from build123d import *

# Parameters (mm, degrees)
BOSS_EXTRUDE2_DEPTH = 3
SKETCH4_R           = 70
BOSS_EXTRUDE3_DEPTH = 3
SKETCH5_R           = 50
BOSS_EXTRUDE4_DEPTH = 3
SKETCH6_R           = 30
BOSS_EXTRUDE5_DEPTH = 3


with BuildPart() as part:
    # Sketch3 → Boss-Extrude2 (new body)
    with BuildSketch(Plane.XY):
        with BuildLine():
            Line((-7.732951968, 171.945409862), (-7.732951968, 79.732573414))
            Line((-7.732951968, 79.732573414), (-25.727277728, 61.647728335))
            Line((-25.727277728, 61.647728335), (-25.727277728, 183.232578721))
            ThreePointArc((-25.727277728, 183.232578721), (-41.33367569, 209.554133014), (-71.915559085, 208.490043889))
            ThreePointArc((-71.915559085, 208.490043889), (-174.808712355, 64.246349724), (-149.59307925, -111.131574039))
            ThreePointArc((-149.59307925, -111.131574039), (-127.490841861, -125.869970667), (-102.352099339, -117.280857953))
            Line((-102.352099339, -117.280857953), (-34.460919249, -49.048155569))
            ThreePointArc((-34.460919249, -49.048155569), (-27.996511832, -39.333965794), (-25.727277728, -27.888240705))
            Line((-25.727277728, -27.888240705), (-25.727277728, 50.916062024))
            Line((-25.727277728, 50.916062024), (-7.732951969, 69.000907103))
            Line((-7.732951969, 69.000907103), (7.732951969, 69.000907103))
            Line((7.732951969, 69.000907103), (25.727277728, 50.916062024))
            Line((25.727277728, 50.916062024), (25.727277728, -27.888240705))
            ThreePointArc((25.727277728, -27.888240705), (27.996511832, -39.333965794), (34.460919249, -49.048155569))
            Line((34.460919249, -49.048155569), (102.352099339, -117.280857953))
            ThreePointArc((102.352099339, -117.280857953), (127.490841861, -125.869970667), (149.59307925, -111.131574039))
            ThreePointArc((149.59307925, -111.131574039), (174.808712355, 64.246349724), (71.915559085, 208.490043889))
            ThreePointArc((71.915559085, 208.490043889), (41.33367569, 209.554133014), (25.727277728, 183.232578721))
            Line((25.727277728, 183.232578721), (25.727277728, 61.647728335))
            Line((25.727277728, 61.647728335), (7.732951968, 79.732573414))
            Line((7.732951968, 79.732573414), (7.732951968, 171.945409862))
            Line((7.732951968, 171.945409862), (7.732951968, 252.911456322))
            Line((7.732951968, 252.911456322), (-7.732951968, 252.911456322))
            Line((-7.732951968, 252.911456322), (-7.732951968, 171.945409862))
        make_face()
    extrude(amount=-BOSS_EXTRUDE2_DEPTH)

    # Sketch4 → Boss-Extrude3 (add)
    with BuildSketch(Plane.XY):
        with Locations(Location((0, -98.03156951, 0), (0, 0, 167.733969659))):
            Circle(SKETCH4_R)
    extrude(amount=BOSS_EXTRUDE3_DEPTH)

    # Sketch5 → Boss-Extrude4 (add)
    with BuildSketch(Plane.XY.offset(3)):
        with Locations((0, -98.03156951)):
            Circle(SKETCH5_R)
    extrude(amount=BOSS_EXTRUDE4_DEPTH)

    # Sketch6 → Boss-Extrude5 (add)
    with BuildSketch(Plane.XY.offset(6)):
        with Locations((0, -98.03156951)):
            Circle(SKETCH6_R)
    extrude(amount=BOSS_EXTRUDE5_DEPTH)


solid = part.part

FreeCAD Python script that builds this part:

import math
import FreeCAD as App
import Part
import Sketcher
from FreeCAD import Vector

doc = App.newDocument("Part")
params = doc.addObject("Spreadsheet::Sheet", "Params")
for row, (alias, value) in enumerate([
    ("sketch1_radius", "30 mm"),
    ("pad1_length", "3 mm"),
    ("sketch2_diameter", "140 mm"),
    ("pad2_length", "3 mm"),
    ("sketch3_diameter", "100 mm"),
    ("pad3_length", "3 mm"),
    ("sketch4_diameter", "60 mm"),
    ("pad4_length", "3 mm"),
], start=1):
    params.set(f"A{row}", alias)
    params.set(f"B{row}", "=" + value)
    params.setAlias(f"B{row}", alias)

body = doc.addObject("PartDesign::Body", "Body")

# Sketch on XY plane
sketch1 = body.newObject("Sketcher::SketchObject", "Sketch")
sketch1.AttachmentSupport = (doc.getObject("XY_Plane"), [""])
sketch1.MapMode = "FlatFace"
sketch1.addGeometry(Part.LineSegment(Vector(-8, 80, 0), Vector(-26, 62, 0)), False)
sketch1.addGeometry(Part.LineSegment(Vector(-26, 62, 0), Vector(-26, 183, 0)), False)
sketch1.addGeometry(Part.ArcOfCircle(Part.Circle(Vector(-56, 183, 0), Vector(0, 0, 1), 30), math.radians(0), math.radians(123)), False)
sketch1.addGeometry(Part.ArcOfCircle(Part.Circle(Vector(57, 8, 0), Vector(0, 0, 1), 238), math.radians(123), math.radians(210)), False)
sketch1.addGeometry(Part.ArcOfCircle(Part.Circle(Vector(-124, -96, 0), Vector(0, 0, 1), 30), math.radians(-150), math.radians(-45)), False)
sketch1.addGeometry(Part.LineSegment(Vector(-102, -117, 0), Vector(-34, -49, 0)), False)
sketch1.addGeometry(Part.ArcOfCircle(Part.Circle(Vector(-56, -28, 0), Vector(0, 0, 1), 30), math.radians(-45), math.radians(0)), False)
sketch1.addGeometry(Part.LineSegment(Vector(-26, -28, 0), Vector(-26, 51, 0)), False)
sketch1.addGeometry(Part.LineSegment(Vector(-26, 51, 0), Vector(-8, 69, 0)), False)
sketch1.addGeometry(Part.LineSegment(Vector(-8, 69, 0), Vector(8, 69, 0)), False)
sketch1.addGeometry(Part.LineSegment(Vector(8, 69, 0), Vector(26, 51, 0)), False)
sketch1.addGeometry(Part.LineSegment(Vector(26, 51, 0), Vector(26, -28, 0)), False)
sketch1.addGeometry(Part.ArcOfCircle(Part.Circle(Vector(56, -28, 0), Vector(0, 0, 1), 30), math.radians(-180), math.radians(-135)), False)
sketch1.addGeometry(Part.LineSegment(Vector(34, -49, 0), Vector(102, -117, 0)), False)
sketch1.addGeometry(Part.ArcOfCircle(Part.Circle(Vector(124, -96, 0), Vector(0, 0, 1), 30), math.radians(-135), math.radians(-30)), False)
sketch1.addGeometry(Part.ArcOfCircle(Part.Circle(Vector(-57, 8, 0), Vector(0, 0, 1), 238), math.radians(-30), math.radians(57)), False)
sketch1.addGeometry(Part.ArcOfCircle(Part.Circle(Vector(56, 183, 0), Vector(0, 0, 1), 30), math.radians(57), math.radians(180)), False)
sketch1.addGeometry(Part.LineSegment(Vector(26, 183, 0), Vector(26, 62, 0)), False)
sketch1.addGeometry(Part.LineSegment(Vector(26, 62, 0), Vector(8, 80, 0)), False)
sketch1.addGeometry(Part.LineSegment(Vector(8, 80, 0), Vector(8, 253, 0)), False)
sketch1.addGeometry(Part.LineSegment(Vector(8, 253, 0), Vector(-8, 253, 0)), False)
sketch1.addGeometry(Part.LineSegment(Vector(-8, 253, 0), Vector(-8, 80, 0)), False)
sketch1.addConstraint(Sketcher.Constraint("Coincident", 0, 2, 1, 1))
sketch1.addConstraint(Sketcher.Constraint("Tangent", 1, 2, 2, 1))
sketch1.addConstraint(Sketcher.Constraint("Tangent", 2, 2, 3, 1))
sketch1.addConstraint(Sketcher.Constraint("Tangent", 3, 2, 4, 1))
sketch1.addConstraint(Sketcher.Constraint("Tangent", 4, 2, 5, 1))
sketch1.addConstraint(Sketcher.Constraint("Tangent", 5, 2, 6, 1))
sketch1.addConstraint(Sketcher.Constraint("Tangent", 6, 2, 7, 1))
sketch1.addConstraint(Sketcher.Constraint("Coincident", 7, 2, 8, 1))
sketch1.addConstraint(Sketcher.Constraint("Coincident", 8, 2, 9, 1))
sketch1.addConstraint(Sketcher.Constraint("Coincident", 9, 2, 10, 1))
sketch1.addConstraint(Sketcher.Constraint("Coincident", 10, 2, 11, 1))
sketch1.addConstraint(Sketcher.Constraint("Tangent", 11, 2, 12, 1))
sketch1.addConstraint(Sketcher.Constraint("Tangent", 12, 2, 13, 1))
sketch1.addConstraint(Sketcher.Constraint("Tangent", 13, 2, 14, 1))
sketch1.addConstraint(Sketcher.Constraint("Tangent", 14, 2, 15, 1))
sketch1.addConstraint(Sketcher.Constraint("Tangent", 15, 2, 16, 1))
sketch1.addConstraint(Sketcher.Constraint("Tangent", 16, 2, 17, 1))
sketch1.addConstraint(Sketcher.Constraint("Coincident", 17, 2, 18, 1))
sketch1.addConstraint(Sketcher.Constraint("Coincident", 18, 2, 19, 1))
sketch1.addConstraint(Sketcher.Constraint("Coincident", 19, 2, 20, 1))
sketch1.addConstraint(Sketcher.Constraint("Coincident", 20, 2, 21, 1))
sketch1.addConstraint(Sketcher.Constraint("Coincident", 21, 2, 0, 1))
sketch1.addConstraint(Sketcher.Constraint("Vertical", 1))
sketch1.addConstraint(Sketcher.Constraint("Vertical", 7))
sketch1.addConstraint(Sketcher.Constraint("Horizontal", 9))
sketch1.addConstraint(Sketcher.Constraint("Vertical", 11))
sketch1.addConstraint(Sketcher.Constraint("Vertical", 17))
sketch1.addConstraint(Sketcher.Constraint("Vertical", 19))
sketch1.addConstraint(Sketcher.Constraint("Horizontal", 20))
sketch1.addConstraint(Sketcher.Constraint("Vertical", 21))
sketch1.addConstraint(Sketcher.Constraint("Equal", 2, 4))
sketch1.addConstraint(Sketcher.Constraint("Equal", 4, 6))
sketch1.addConstraint(Sketcher.Constraint("Equal", 6, 12))
sketch1.addConstraint(Sketcher.Constraint("Equal", 12, 14))
sketch1.addConstraint(Sketcher.Constraint("Equal", 3, 15))
sketch1.addConstraint(Sketcher.Constraint("Equal", 14, 16))
sketch1.addConstraint(Sketcher.Constraint("Symmetric", 6, 3, 12, 3, -2))
sketch1.addConstraint(Sketcher.Constraint("Symmetric", 4, 3, 14, 3, -2))
sketch1.addConstraint(Sketcher.Constraint("Symmetric", 2, 3, 16, 3, -2))
sketch1.addConstraint(Sketcher.Constraint("Symmetric", 18, 2, 21, 2, -2))
sketch1.addConstraint(Sketcher.Constraint("Parallel", 0, 5))
sketch1.addConstraint(Sketcher.Constraint("Parallel", 5, 8))
sketch1.addConstraint(Sketcher.Constraint("Parallel", 10, 13))
sketch1.addConstraint(Sketcher.Constraint("Parallel", 13, 18))
sketch1.addConstraint(Sketcher.Constraint("Horizontal", 7, 2, 10, 2))
sketch1.addConstraint(Sketcher.Constraint("Vertical", 2, 3, 6, 3))
sketch1.addConstraint(Sketcher.Constraint("Vertical", 9, 2, 18, 2))
sketch1.addConstraint(Sketcher.Constraint("Radius", 2, 30.0))
sketch1.addConstraint(Sketcher.Constraint("Radius", 3, 238.120236))
sketch1.addConstraint(Sketcher.Constraint("DistanceY", 1, 1, 1, 2, 121.58485))
sketch1.addConstraint(Sketcher.Constraint("DistanceX", 4, 2, -1, 1, 102.352099))
sketch1.addConstraint(Sketcher.Constraint("DistanceY", 3, 2, 15, 3, 119.144499))
sketch1.addConstraint(Sketcher.Constraint("DistanceX", 15, 3, 8, 2, 48.843401))
sketch1.addConstraint(Sketcher.Constraint("DistanceX", 12, 3, 14, 2, 93.865802))
sketch1.addConstraint(Sketcher.Constraint("DistanceX", 9, 1, 9, 2, 15.465904))
sketch1.addConstraint(Sketcher.Constraint("DistanceY", 7, 1, 7, 2, 78.804303))
sketch1.addConstraint(Sketcher.Constraint("DistanceY", 19, 1, 19, 2, 173.178883))
sketch1.addConstraint(Sketcher.Constraint("DistanceY", -1, 1, 2, 3, 183.232579))
sketch1.setExpression("Constraints[47]", "Params.sketch1_radius")
pad1 = body.newObject("PartDesign::Pad", "Pad")
pad1.Profile = sketch1
pad1.setExpression("Length", "Params.pad1_length")
pad1.Reversed = True

# Sketch on XY plane
sketch2 = body.newObject("Sketcher::SketchObject", "Sketch001")
sketch2.AttachmentSupport = (doc.getObject("XY_Plane"), [""])
sketch2.MapMode = "FlatFace"
sketch2.addGeometry(Part.Circle(Vector(0, -98, 0), Vector(0, 0, 1), 70), False)
sketch2.addConstraint(Sketcher.Constraint("PointOnObject", 0, 3, -2))
sketch2.addConstraint(Sketcher.Constraint("Diameter", 0, 140.0))
sketch2.addConstraint(Sketcher.Constraint("DistanceY", 0, 3, -1, 1, 98.03157))
sketch2.setExpression("Constraints[1]", "Params.sketch2_diameter")
pad2 = body.newObject("PartDesign::Pad", "Pad001")
pad2.Profile = sketch2
pad2.setExpression("Length", "Params.pad2_length")

# Sketch on XY plane
sketch3 = body.newObject("Sketcher::SketchObject", "Sketch002")
sketch3.AttachmentSupport = (doc.getObject("XY_Plane"), [""])
sketch3.MapMode = "FlatFace"
sketch3.AttachmentOffset = App.Placement(Vector(0, 0, 3), App.Rotation())
sketch3.addGeometry(Part.Circle(Vector(0, -98, 0), Vector(0, 0, 1), 50), False)
sketch3.addConstraint(Sketcher.Constraint("PointOnObject", 0, 3, -2))
sketch3.addConstraint(Sketcher.Constraint("Diameter", 0, 100.0))
sketch3.addConstraint(Sketcher.Constraint("DistanceY", 0, 3, -1, 1, 98.03157))
sketch3.setExpression("Constraints[1]", "Params.sketch3_diameter")
pad3 = body.newObject("PartDesign::Pad", "Pad002")
pad3.Profile = sketch3
pad3.setExpression("Length", "Params.pad3_length")

# Sketch on XY plane
sketch4 = body.newObject("Sketcher::SketchObject", "Sketch003")
sketch4.AttachmentSupport = (doc.getObject("XY_Plane"), [""])
sketch4.MapMode = "FlatFace"
sketch4.AttachmentOffset = App.Placement(Vector(0, 0, 6), App.Rotation())
sketch4.addGeometry(Part.Circle(Vector(0, -98, 0), Vector(0, 0, 1), 30), False)
sketch4.addConstraint(Sketcher.Constraint("PointOnObject", 0, 3, -2))
sketch4.addConstraint(Sketcher.Constraint("Diameter", 0, 60.0))
sketch4.addConstraint(Sketcher.Constraint("DistanceY", 0, 3, -1, 1, 98.03157))
sketch4.setExpression("Constraints[1]", "Params.sketch4_diameter")
pad4 = body.newObject("PartDesign::Pad", "Pad003")
pad4.Profile = sketch4
pad4.setExpression("Length", "Params.pad4_length")

doc.recompute()
